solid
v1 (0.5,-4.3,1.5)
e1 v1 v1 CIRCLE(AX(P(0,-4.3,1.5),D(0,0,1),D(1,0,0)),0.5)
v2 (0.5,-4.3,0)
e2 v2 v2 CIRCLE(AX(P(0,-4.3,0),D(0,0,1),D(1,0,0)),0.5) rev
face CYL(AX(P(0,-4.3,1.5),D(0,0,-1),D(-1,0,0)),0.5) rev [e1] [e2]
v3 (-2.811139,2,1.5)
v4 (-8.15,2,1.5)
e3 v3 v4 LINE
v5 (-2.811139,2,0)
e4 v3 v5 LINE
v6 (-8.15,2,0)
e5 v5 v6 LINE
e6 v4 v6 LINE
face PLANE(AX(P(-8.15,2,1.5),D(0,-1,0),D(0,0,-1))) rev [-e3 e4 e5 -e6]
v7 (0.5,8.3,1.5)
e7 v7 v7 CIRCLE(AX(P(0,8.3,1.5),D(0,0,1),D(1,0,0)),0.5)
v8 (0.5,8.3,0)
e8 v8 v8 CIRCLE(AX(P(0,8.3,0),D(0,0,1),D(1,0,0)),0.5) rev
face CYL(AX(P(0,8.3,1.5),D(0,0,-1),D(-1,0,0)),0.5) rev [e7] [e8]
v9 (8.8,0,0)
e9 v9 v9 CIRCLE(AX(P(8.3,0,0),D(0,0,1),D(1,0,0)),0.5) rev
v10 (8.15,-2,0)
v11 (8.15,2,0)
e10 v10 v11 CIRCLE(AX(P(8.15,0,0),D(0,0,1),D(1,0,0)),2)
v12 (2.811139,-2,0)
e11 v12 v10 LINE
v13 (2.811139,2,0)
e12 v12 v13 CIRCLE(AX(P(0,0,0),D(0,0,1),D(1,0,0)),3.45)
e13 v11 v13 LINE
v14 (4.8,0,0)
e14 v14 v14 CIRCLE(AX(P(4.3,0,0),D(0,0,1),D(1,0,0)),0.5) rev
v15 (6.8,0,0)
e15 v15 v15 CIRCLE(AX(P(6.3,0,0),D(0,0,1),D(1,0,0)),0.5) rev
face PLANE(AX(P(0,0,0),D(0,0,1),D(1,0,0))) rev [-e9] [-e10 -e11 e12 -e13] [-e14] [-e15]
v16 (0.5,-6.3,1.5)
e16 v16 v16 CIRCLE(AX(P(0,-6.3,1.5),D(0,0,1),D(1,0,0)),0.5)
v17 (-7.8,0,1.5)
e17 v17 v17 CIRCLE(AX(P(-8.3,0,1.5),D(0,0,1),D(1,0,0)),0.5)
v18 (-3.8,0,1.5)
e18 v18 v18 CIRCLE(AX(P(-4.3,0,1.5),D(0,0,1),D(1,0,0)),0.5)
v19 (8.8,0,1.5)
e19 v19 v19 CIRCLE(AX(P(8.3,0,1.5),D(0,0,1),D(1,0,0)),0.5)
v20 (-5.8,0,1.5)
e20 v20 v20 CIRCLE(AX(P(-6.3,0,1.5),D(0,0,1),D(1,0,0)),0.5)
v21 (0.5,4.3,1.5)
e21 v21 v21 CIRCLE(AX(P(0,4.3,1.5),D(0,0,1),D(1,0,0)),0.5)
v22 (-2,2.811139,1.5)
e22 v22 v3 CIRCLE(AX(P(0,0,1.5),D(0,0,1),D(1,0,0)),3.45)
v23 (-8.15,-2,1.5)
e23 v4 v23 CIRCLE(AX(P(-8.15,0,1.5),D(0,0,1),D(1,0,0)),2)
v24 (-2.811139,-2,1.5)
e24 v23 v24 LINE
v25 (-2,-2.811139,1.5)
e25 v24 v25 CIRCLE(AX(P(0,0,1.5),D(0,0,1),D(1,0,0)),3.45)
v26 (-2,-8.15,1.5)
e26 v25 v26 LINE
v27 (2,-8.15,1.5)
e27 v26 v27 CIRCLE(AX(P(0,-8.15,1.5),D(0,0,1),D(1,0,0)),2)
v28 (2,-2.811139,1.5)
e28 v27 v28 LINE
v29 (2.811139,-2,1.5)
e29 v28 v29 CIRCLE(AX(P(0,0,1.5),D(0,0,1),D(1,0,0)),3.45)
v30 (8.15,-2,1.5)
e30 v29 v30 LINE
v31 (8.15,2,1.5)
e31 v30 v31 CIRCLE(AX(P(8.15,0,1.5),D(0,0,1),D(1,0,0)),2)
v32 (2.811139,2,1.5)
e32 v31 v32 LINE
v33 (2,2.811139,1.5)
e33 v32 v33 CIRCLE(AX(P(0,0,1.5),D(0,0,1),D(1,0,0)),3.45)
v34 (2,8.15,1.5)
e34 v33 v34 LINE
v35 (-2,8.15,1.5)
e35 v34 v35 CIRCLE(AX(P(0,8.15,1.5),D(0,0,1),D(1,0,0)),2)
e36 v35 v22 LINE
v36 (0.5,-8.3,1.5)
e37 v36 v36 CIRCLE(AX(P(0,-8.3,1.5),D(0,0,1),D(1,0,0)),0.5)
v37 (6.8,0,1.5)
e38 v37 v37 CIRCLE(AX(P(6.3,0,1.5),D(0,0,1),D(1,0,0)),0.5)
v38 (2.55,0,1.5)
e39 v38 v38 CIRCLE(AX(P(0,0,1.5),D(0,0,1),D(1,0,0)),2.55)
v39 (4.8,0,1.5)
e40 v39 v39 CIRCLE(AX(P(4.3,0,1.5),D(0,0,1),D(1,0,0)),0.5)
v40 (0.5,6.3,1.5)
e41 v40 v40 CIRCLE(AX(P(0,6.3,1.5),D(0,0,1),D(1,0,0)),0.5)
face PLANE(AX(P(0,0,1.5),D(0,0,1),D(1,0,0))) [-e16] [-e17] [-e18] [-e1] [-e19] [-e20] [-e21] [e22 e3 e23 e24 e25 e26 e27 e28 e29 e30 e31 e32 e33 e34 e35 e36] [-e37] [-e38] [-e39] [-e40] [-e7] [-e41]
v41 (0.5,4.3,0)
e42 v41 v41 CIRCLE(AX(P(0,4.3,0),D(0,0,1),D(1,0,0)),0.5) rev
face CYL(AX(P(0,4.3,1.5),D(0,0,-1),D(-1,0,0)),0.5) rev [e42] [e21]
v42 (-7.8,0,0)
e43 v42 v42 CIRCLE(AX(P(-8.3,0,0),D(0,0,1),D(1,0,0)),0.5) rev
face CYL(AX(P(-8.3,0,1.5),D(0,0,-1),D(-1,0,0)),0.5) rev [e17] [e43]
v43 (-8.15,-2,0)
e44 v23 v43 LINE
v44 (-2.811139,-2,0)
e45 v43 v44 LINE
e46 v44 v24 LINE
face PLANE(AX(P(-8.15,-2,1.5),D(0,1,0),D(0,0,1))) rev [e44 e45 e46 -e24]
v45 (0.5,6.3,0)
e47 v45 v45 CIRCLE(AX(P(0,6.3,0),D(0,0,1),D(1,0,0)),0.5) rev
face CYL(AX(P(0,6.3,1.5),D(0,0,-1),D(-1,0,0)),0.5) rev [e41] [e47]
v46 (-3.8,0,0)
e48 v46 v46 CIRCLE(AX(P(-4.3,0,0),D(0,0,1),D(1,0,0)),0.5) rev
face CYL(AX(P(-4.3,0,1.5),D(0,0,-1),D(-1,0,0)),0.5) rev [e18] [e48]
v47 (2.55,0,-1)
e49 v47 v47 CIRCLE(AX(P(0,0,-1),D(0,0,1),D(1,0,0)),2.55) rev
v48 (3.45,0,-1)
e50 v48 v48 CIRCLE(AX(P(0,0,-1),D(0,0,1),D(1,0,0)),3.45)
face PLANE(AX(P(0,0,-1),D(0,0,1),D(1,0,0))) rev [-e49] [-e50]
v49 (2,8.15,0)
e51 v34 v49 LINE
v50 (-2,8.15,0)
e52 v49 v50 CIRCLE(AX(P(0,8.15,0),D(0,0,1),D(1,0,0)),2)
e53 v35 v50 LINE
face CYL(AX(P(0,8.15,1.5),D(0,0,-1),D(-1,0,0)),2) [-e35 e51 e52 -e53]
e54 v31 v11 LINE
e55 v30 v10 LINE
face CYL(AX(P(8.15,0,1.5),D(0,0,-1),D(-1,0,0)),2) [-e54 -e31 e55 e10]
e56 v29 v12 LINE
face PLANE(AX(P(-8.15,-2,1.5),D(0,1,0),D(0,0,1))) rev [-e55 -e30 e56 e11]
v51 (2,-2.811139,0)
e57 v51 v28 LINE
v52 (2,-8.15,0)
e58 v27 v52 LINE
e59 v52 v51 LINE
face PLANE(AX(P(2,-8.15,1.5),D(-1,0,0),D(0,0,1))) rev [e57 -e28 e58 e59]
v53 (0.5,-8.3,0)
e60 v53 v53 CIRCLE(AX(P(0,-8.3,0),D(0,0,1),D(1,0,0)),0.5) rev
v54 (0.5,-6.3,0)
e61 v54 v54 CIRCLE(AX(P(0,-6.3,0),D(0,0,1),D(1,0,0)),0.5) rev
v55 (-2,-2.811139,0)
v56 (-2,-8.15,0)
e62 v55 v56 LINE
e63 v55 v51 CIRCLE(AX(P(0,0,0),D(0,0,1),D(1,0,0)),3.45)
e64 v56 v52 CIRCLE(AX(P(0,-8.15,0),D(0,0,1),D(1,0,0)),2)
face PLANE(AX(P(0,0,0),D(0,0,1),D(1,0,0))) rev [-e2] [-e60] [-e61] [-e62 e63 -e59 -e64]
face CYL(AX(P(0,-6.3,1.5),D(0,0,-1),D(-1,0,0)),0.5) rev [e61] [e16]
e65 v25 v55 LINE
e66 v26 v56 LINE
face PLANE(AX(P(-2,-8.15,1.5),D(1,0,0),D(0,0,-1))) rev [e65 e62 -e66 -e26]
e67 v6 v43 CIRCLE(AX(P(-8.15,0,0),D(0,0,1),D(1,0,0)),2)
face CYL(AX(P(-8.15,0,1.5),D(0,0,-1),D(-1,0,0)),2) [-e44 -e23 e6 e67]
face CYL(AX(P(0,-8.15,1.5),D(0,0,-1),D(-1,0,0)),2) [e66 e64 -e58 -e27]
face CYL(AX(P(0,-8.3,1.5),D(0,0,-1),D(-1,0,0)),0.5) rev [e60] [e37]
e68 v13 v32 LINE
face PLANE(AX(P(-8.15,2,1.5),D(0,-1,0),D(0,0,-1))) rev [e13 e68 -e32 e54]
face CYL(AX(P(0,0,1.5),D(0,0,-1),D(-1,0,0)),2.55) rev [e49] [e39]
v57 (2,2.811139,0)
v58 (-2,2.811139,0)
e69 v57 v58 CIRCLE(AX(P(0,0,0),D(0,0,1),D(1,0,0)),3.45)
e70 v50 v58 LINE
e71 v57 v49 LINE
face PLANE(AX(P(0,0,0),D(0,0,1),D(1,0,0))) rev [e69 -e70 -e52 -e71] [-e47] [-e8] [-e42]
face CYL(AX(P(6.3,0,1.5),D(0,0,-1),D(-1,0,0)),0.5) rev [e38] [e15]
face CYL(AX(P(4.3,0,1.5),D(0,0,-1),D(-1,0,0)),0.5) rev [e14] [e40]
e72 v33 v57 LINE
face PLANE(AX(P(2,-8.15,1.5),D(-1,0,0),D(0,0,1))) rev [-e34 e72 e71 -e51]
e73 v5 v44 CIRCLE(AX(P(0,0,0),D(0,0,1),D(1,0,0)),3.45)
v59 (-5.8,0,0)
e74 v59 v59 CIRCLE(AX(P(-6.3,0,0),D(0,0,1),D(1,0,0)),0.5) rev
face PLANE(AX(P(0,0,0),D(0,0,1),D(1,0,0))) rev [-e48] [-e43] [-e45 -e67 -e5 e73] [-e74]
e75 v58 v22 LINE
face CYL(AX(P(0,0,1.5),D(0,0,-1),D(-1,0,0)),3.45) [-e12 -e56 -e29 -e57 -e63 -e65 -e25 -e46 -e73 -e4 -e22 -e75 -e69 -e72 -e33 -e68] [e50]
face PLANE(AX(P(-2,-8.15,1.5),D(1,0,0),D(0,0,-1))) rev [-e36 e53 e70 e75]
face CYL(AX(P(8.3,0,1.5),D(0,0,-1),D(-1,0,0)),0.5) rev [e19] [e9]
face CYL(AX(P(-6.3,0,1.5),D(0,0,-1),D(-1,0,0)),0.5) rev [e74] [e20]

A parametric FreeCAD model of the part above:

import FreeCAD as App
import Part
import Sketcher
from FreeCAD import Vector

doc = App.newDocument("Part")
body = doc.addObject("PartDesign::Body", "Body")

sketch1 = body.newObject("Sketcher::SketchObject", "Sketch")
sketch1.AttachmentSupport = (doc.getObject("XY_Plane"), [""])
sketch1.MapMode = "FlatFace"
sketch1.addGeometry(Part.Circle(Vector(0, 0, 0), Vector(0, 0, 1), 3.5), False)
sketch1.addConstraint(Sketcher.Constraint("Coincident", 0, 3, -1, 1))
sketch1.addConstraint(Sketcher.Constraint("Diameter", 0, 6.9))
pad1 = body.newObject("PartDesign::Pad", "Pad")
pad1.Profile = sketch1
pad1.Length = 1.5

sketch2 = body.newObject("Sketcher::SketchObject", "Sketch001")
sketch2.AttachmentSupport = (doc.getObject("XY_Plane"), [""])
sketch2.MapMode = "FlatFace"
sketch2.addGeometry(Part.LineSegment(Vector(-8.2, 2, 0), Vector(-8.2, -2, 0)), False)
sketch2.addGeometry(Part.LineSegment(Vector(-8.2, -2, 0), Vector(8.2, -2, 0)), False)
sketch2.addGeometry(Part.LineSegment(Vector(8.2, -2, 0), Vector(8.2, 2, 0)), False)
sketch2.addGeometry(Part.LineSegment(Vector(8.2, 2, 0), Vector(-8.2, 2, 0)), False)
sketch2.addConstraint(Sketcher.Constraint("Coincident", 0, 2, 1, 1))
sketch2.addConstraint(Sketcher.Constraint("Coincident", 1, 2, 2, 1))
sketch2.addConstraint(Sketcher.Constraint("Coincident", 2, 2, 3, 1))
sketch2.addConstraint(Sketcher.Constraint("Coincident", 3, 2, 0, 1))
sketch2.addConstraint(Sketcher.Constraint("Vertical", 0))
sketch2.addConstraint(Sketcher.Constraint("Horizontal", 1))
sketch2.addConstraint(Sketcher.Constraint("Vertical", 2))
sketch2.addConstraint(Sketcher.Constraint("Horizontal", 3))
sketch2.addConstraint(Sketcher.Constraint("Symmetric", 0, 2, 2, 2, -1, 1))
sketch2.addConstraint(Sketcher.Constraint("DistanceY", 0, 2, 0, 1, 4.0))
sketch2.addConstraint(Sketcher.Constraint("DistanceX", 1, 1, 1, 2, 16.3))
pad2 = body.newObject("PartDesign::Pad", "Pad001")
pad2.Profile = sketch2
pad2.Length = 1.5

sketch3 = body.newObject("Sketcher::SketchObject", "Sketch002")
sketch3.AttachmentSupport = (doc.getObject("XY_Plane"), [""])
sketch3.MapMode = "FlatFace"
sketch3.addGeometry(Part.LineSegment(Vector(-2, 8.2, 0), Vector(-2, -8.2, 0)), False)
sketch3.addGeometry(Part.LineSegment(Vector(-2, -8.2, 0), Vector(2, -8.2, 0)), False)
sketch3.addGeometry(Part.LineSegment(Vector(2, -8.2, 0), Vector(2, 8.2, 0)), False)
sketch3.addGeometry(Part.LineSegment(Vector(2, 8.2, 0), Vector(-2, 8.2, 0)), False)
sketch3.addConstraint(Sketcher.Constraint("Coincident", 0, 2, 1, 1))
sketch3.addConstraint(Sketcher.Constraint("Coincident", 1, 2, 2, 1))
sketch3.addConstraint(Sketcher.Constraint("Coincident", 2, 2, 3, 1))
sketch3.addConstraint(Sketcher.Constraint("Coincident", 3, 2, 0, 1))
sketch3.addConstraint(Sketcher.Constraint("Vertical", 0))
sketch3.addConstraint(Sketcher.Constraint("Horizontal", 1))
sketch3.addConstraint(Sketcher.Constraint("Vertical", 2))
sketch3.addConstraint(Sketcher.Constraint("Horizontal", 3))
sketch3.addConstraint(Sketcher.Constraint("Symmetric", 0, 2, 2, 2, -1, 1))
sketch3.addConstraint(Sketcher.Constraint("DistanceX", 1, 1, 1, 2, 4.0))
sketch3.addConstraint(Sketcher.Constraint("DistanceY", 0, 2, 0, 1, 16.3))
pad3 = body.newObject("PartDesign::Pad", "Pad002")
pad3.Profile = sketch3
pad3.Length = 1.5

sketch4 = body.newObject("Sketcher::SketchObject", "Sketch003")
sketch4.AttachmentSupport = (doc.getObject("XY_Plane"), [""])
sketch4.MapMode = "FlatFace"
sketch4.addGeometry(Part.Circle(Vector(8.2, 0, 0), Vector(0, 0, 1), 2), False)
sketch4.addGeometry(Part.Circle(Vector(-8.2, 0, 0), Vector(0, 0, 1), 2), False)
sketch4.addGeometry(Part.Circle(Vector(0, 8.2, 0), Vector(0, 0, 1), 2), False)
sketch4.addGeometry(Part.Circle(Vector(0, -8.2, 0), Vector(0, 0, 1), 2), False)
sketch4.addConstraint(Sketcher.Constraint("Equal", 0, 1))
sketch4.addConstraint(Sketcher.Constraint("Equal", 1, 2))
sketch4.addConstraint(Sketcher.Constraint("Equal", 2, 3))
sketch4.addConstraint(Sketcher.Constraint("Symmetric", 0, 3, 1, 3, -1, 1))
sketch4.addConstraint(Sketcher.Constraint("Symmetric", 2, 3, 3, 3, -1, 1))
sketch4.addConstraint(Sketcher.Constraint("PointOnObject", 0, 3, -1))
sketch4.addConstraint(Sketcher.Constraint("PointOnObject", 2, 3, -2))
sketch4.addConstraint(Sketcher.Constraint("Diameter", 0, 4.0))
sketch4.addConstraint(Sketcher.Constraint("DistanceX", 1, 3, 0, 3, 16.3))
sketch4.addConstraint(Sketcher.Constraint("DistanceY", 3, 3, 2, 3, 16.3))
pad4 = body.newObject("PartDesign::Pad", "Pad003")
pad4.Profile = sketch4
pad4.Length = 1.5

sketch5 = body.newObject("Sketcher::SketchObject", "Sketch004")
sketch5.AttachmentSupport = (doc.getObject("XY_Plane"), [""])
sketch5.MapMode = "FlatFace"
sketch5.AttachmentOffset = App.Placement(Vector(0, 0, -1), App.Rotation())
sketch5.addGeometry(Part.Circle(Vector(0, 0, 0), Vector(0, 0, 1), 3.5), False)
sketch5.addConstraint(Sketcher.Constraint("Coincident", 0, 3, -1, 1))
sketch5.addConstraint(Sketcher.Constraint("Diameter", 0, 6.9))
pad5 = body.newObject("PartDesign::Pad", "Pad004")
pad5.Profile = sketch5
pad5.Length = 1

sketch6 = body.newObject("Sketcher::SketchObject", "Sketch005")
sketch6.AttachmentSupport = (doc.getObject("XY_Plane"), [""])
sketch6.MapMode = "FlatFace"
sketch6.AttachmentOffset = App.Placement(Vector(0, 0, -50), App.Rotation())
sketch6.addGeometry(Part.Circle(Vector(0, 0, 0), Vector(0, 0, 1), 2.5), False)
sketch6.addConstraint(Sketcher.Constraint("Coincident", 0, 3, -1, 1))
sketch6.addConstraint(Sketcher.Constraint("Diameter", 0, 5.1))
pocket1 = body.newObject("PartDesign::Pocket", "Pocket")
pocket1.Profile = sketch6
pocket1.Type = "ThroughAll"
pocket1.Reversed = True

sketch7 = body.newObject("Sketcher::SketchObject", "Sketch006")
sketch7.AttachmentSupport = (doc.getObject("XY_Plane"), [""])
sketch7.MapMode = "FlatFace"
sketch7.AttachmentOffset = App.Placement(Vector(0, 0, -50), App.Rotation())
sketch7.addGeometry(Part.Circle(Vector(-8.3, 0, 0), Vector(0, 0, 1), 0.5), False)
sketch7.addGeometry(Part.Circle(Vector(-6.3, 0, 0), Vector(0, 0, 1), 0.5), False)
sketch7.addGeometry(Part.Circle(Vector(-4.3, 0, 0), Vector(0, 0, 1), 0.5), False)
sketch7.addGeometry(Part.Circle(Vector(4.3, 0, 0), Vector(0, 0, 1), 0.5), False)
sketch7.addGeometry(Part.Circle(Vector(6.3, 0, 0), Vector(0, 0, 1), 0.5), False)
sketch7.addGeometry(Part.Circle(Vector(8.3, 0, 0), Vector(0, 0, 1), 0.5), False)
sketch7.addGeometry(Part.Circle(Vector(0, -8.3, 0), Vector(0, 0, 1), 0.5), False)
sketch7.addGeometry(Part.Circle(Vector(0, -6.3, 0), Vector(0, 0, 1), 0.5), False)
sketch7.addGeometry(Part.Circle(Vector(0, -4.3, 0), Vector(0, 0, 1), 0.5), False)
sketch7.addGeometry(Part.Circle(Vector(0, 4.3, 0), Vector(0, 0, 1), 0.5), False)
sketch7.addGeometry(Part.Circle(Vector(0, 6.3, 0), Vector(0, 0, 1), 0.5), False)
sketch7.addGeometry(Part.Circle(Vector(0, 8.3, 0), Vector(0, 0, 1), 0.5), False)
sketch7.addConstraint(Sketcher.Constraint("Equal", 0, 1))
sketch7.addConstraint(Sketcher.Constraint("Equal", 1, 2))
sketch7.addConstraint(Sketcher.Constraint("Equal", 2, 3))
sketch7.addConstraint(Sketcher.Constraint("Equal", 3, 4))
sketch7.addConstraint(Sketcher.Constraint("Equal", 4, 5))
sketch7.addConstraint(Sketcher.Constraint("Equal", 5, 6))
sketch7.addConstraint(Sketcher.Constraint("Equal", 6, 7))
sketch7.addConstraint(Sketcher.Constraint("Equal", 7, 8))
sketch7.addConstraint(Sketcher.Constraint("Equal", 8, 9))
sketch7.addConstraint(Sketcher.Constraint("Equal", 9, 10))
sketch7.addConstraint(Sketcher.Constraint("Equal", 10, 11))
sketch7.addConstraint(Sketcher.Constraint("Symmetric", 2, 3, 3, 3, -1, 1))
sketch7.addConstraint(Sketcher.Constraint("Symmetric", 1, 3, 4, 3, -1, 1))
sketch7.addConstraint(Sketcher.Constraint("Symmetric", 0, 3, 5, 3, -1, 1))
sketch7.addConstraint(Sketcher.Constraint("Symmetric", 8, 3, 9, 3, -1, 1))
sketch7.addConstraint(Sketcher.Constraint("Symmetric", 7, 3, 10, 3, -1, 1))
sketch7.addConstraint(Sketcher.Constraint("Symmetric", 6, 3, 11, 3, -1, 1))
sketch7.addConstraint(Sketcher.Constraint("PointOnObject", 0, 3, -1))
sketch7.addConstraint(Sketcher.Constraint("PointOnObject", 1, 3, -1))
sketch7.addConstraint(Sketcher.Constraint("PointOnObject", 2, 3, -1))
sketch7.addConstraint(Sketcher.Constraint("PointOnObject", 6, 3, -2))
sketch7.addConstraint(Sketcher.Constraint("PointOnObject", 7, 3, -2))
sketch7.addConstraint(Sketcher.Constraint("PointOnObject", 8, 3, -2))
sketch7.addConstraint(Sketcher.Constraint("Diameter", 0, 1.0))
sketch7.addConstraint(Sketcher.Constraint("DistanceX", 0, 3, 1, 3, 2.0))
sketch7.addConstraint(Sketcher.Constraint("DistanceX", 1, 3, 2, 3, 2.0))
sketch7.addConstraint(Sketcher.Constraint("DistanceY", 6, 3, 7, 3, 2.0))
sketch7.addConstraint(Sketcher.Constraint("DistanceY", 7, 3, 8, 3, 2.0))
sketch7.addConstraint(Sketcher.Constraint("DistanceX", 0, 3, -1, 1, 8.3))
sketch7.addConstraint(Sketcher.Constraint("DistanceY", 6, 3, -1, 1, 8.3))
pocket2 = body.newObject("PartDesign::Pocket", "Pocket001")
pocket2.Profile = sketch7
pocket2.Type = "ThroughAll"
pocket2.Reversed = True

doc.recompute()
